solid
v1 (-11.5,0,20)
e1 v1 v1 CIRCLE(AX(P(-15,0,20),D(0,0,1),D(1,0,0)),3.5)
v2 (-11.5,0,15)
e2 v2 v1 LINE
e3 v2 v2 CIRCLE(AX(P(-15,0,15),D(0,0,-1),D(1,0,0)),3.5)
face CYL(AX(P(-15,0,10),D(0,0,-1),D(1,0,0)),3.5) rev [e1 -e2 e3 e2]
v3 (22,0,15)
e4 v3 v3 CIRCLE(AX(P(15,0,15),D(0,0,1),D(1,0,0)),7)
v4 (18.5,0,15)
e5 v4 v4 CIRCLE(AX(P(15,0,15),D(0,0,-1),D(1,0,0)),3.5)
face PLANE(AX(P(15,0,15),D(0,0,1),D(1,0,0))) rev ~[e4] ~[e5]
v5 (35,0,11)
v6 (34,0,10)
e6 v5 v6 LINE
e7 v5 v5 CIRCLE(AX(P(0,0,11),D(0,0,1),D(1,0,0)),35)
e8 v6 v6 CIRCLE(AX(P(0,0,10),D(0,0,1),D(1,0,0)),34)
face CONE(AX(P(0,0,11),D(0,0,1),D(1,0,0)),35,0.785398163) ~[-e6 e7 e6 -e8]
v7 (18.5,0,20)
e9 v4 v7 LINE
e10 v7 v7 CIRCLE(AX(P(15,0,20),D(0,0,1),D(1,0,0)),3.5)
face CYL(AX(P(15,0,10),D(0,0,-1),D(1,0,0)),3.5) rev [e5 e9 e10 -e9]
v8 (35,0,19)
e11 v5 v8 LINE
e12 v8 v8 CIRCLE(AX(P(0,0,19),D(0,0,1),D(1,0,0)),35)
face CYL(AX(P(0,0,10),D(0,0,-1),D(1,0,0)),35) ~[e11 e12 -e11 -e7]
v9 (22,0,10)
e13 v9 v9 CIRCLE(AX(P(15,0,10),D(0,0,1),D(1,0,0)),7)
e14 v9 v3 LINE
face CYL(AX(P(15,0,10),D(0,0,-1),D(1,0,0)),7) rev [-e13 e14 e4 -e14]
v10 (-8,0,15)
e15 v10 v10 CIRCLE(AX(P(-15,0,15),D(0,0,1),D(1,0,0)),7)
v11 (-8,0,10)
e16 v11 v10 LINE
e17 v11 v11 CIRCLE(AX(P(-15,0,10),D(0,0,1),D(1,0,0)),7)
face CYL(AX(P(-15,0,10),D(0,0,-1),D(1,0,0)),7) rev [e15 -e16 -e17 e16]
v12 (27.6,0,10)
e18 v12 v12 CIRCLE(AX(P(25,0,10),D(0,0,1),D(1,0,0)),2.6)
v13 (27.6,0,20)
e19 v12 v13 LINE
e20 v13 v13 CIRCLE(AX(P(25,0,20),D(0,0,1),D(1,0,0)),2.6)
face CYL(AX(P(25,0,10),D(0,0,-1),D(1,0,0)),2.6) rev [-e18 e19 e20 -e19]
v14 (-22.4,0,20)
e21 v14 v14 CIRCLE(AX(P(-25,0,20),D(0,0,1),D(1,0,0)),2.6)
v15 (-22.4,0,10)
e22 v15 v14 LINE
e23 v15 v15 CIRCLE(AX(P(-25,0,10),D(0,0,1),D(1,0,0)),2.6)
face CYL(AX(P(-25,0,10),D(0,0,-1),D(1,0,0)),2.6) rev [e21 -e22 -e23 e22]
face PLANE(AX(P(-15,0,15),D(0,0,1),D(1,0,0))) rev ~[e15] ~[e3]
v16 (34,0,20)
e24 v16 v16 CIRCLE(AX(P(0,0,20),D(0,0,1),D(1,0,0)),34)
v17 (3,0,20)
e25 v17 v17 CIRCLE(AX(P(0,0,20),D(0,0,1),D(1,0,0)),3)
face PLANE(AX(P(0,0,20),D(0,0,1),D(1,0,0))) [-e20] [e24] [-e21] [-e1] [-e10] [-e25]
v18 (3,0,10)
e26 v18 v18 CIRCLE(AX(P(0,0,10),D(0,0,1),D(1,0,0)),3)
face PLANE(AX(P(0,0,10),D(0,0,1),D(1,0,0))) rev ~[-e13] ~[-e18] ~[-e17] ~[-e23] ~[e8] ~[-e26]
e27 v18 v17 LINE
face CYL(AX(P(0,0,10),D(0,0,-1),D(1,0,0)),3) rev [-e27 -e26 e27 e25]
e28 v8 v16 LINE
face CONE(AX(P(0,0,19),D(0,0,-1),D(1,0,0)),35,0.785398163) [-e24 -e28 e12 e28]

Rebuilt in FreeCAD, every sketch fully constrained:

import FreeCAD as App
import Part
import Sketcher
from FreeCAD import Vector


def edges_at(feature, points):
    """Names of the edges that pass closest to the given points."""
    edges = feature.Shape.Edges
    near = lambda p: min(range(len(edges)), key=lambda i: edges[i].distToShape(Part.Vertex(*p))[0])
    return sorted({f"Edge{near(p) + 1}" for p in points})

doc = App.newDocument("Part")
body = doc.addObject("PartDesign::Body", "Body")

# Sketch on XY plane
sketch1 = body.newObject("Sketcher::SketchObject", "Sketch")
sketch1.AttachmentSupport = (doc.getObject("XY_Plane"), [""])
sketch1.MapMode = "FlatFace"
sketch1.addGeometry(Part.Circle(Vector(15, 0, 0), Vector(0, 0, 1), 3.5), False)
sketch1.addConstraint(Sketcher.Constraint("PointOnObject", 0, 3, -1))
sketch1.addConstraint(Sketcher.Constraint("Diameter", 0, 7.0))
sketch1.addConstraint(Sketcher.Constraint("DistanceX", -1, 1, 0, 3, 15.0))
pad1 = body.newObject("PartDesign::Pad", "Pad")
pad1.Profile = sketch1
pad1.Length = 10
body2 = doc.addObject("PartDesign::Body", "Body001")

# Sketch on XY plane
sketch2 = body2.newObject("Sketcher::SketchObject", "Sketch001")
sketch2.AttachmentSupport = (doc.getObject("XY_Plane001"), [""])
sketch2.MapMode = "FlatFace"
sketch2.addGeometry(Part.Circle(Vector(15, 0, 0), Vector(0, 0, 1), 7), False)
sketch2.addConstraint(Sketcher.Constraint("PointOnObject", 0, 3, -1))
sketch2.addConstraint(Sketcher.Constraint("Diameter", 0, 14.0))
sketch2.addConstraint(Sketcher.Constraint("DistanceX", -1, 1, 0, 3, 15.0))
pad2 = body2.newObject("PartDesign::Pad", "Pad001")
pad2.Profile = sketch2
pad2.Length = 5
body3 = doc.addObject("PartDesign::Body", "Body002")

# Sketch on XY plane
sketch3 = body3.newObject("Sketcher::SketchObject", "Sketch002")
sketch3.AttachmentSupport = (doc.getObject("XY_Plane002"), [""])
sketch3.MapMode = "FlatFace"
sketch3.addGeometry(Part.Circle(Vector(-15, 0, 0), Vector(0, 0, 1), 3.5), False)
sketch3.addConstraint(Sketcher.Constraint("PointOnObject", 0, 3, -1))
sketch3.addConstraint(Sketcher.Constraint("Diameter", 0, 7.0))
sketch3.addConstraint(Sketcher.Constraint("DistanceX", 0, 3, -1, 1, 15.0))
pad3 = body3.newObject("PartDesign::Pad", "Pad002")
pad3.Profile = sketch3
pad3.Length = 10
body4 = doc.addObject("PartDesign::Body", "Body003")

# Sketch on XY plane
sketch4 = body4.newObject("Sketcher::SketchObject", "Sketch003")
sketch4.AttachmentSupport = (doc.getObject("XY_Plane003"), [""])
sketch4.MapMode = "FlatFace"
sketch4.addGeometry(Part.Circle(Vector(-15, 0, 0), Vector(0, 0, 1), 7), False)
sketch4.addConstraint(Sketcher.Constraint("PointOnObject", 0, 3, -1))
sketch4.addConstraint(Sketcher.Constraint("Diameter", 0, 14.0))
sketch4.addConstraint(Sketcher.Constraint("DistanceX", 0, 3, -1, 1, 15.0))
pad4 = body4.newObject("PartDesign::Pad", "Pad003")
pad4.Profile = sketch4
pad4.Length = 5
body5 = doc.addObject("PartDesign::Body", "Body004")

# Sketch on XY plane
sketch5 = body5.newObject("Sketcher::SketchObject", "Sketch004")
sketch5.AttachmentSupport = (doc.getObject("XY_Plane004"), [""])
sketch5.MapMode = "FlatFace"
sketch5.addGeometry(Part.Circle(Vector(-25, 0, 0), Vector(0, 0, 1), 2.6), False)
sketch5.addConstraint(Sketcher.Constraint("PointOnObject", 0, 3, -1))
sketch5.addConstraint(Sketcher.Constraint("Diameter", 0, 5.2))
sketch5.addConstraint(Sketcher.Constraint("DistanceX", 0, 3, -1, 1, 25.0))
pad5 = body5.newObject("PartDesign::Pad", "Pad004")
pad5.Profile = sketch5
pad5.Length = 10
body6 = doc.addObject("PartDesign::Body", "Body005")

# Sketch on XY plane
sketch6 = body6.newObject("Sketcher::SketchObject", "Sketch005")
sketch6.AttachmentSupport = (doc.getObject("XY_Plane005"), [""])
sketch6.MapMode = "FlatFace"
sketch6.addGeometry(Part.Circle(Vector(25, 0, 0), Vector(0, 0, 1), 2.6), False)
sketch6.addConstraint(Sketcher.Constraint("PointOnObject", 0, 3, -1))
sketch6.addConstraint(Sketcher.Constraint("Diameter", 0, 5.2))
sketch6.addConstraint(Sketcher.Constraint("DistanceX", -1, 1, 0, 3, 25.0))
pad6 = body6.newObject("PartDesign::Pad", "Pad005")
pad6.Profile = sketch6
pad6.Length = 10
body7 = doc.addObject("PartDesign::Body", "Body006")
body7.AllowCompound = True

# Sketch on XY plane
sketch7 = body7.newObject("Sketcher::SketchObject", "Sketch006")
sketch7.AttachmentSupport = (doc.getObject("XY_Plane006"), [""])
sketch7.MapMode = "FlatFace"
sketch7.addGeometry(Part.Circle(Vector(0, 0, 0), Vector(0, 0, 1), 3), False)
sketch7.addConstraint(Sketcher.Constraint("Coincident", 0, 3, -1, 1))
sketch7.addConstraint(Sketcher.Constraint("Diameter", 0, 6.0))
pad7 = body7.newObject("PartDesign::Pad", "Pad006")
pad7.Profile = sketch7
pad7.Length = 10
doc.recompute()

boolean = body7.newObject("PartDesign::Boolean", "Boolean")
boolean.Type = "Fuse"
boolean.addObjects([body])
doc.recompute()

boolean2 = body7.newObject("PartDesign::Boolean", "Boolean001")
boolean2.Type = "Fuse"
boolean2.addObjects([body2])
doc.recompute()

boolean3 = body7.newObject("PartDesign::Boolean", "Boolean002")
boolean3.Type = "Fuse"
boolean3.addObjects([body3])
doc.recompute()

boolean4 = body7.newObject("PartDesign::Boolean", "Boolean003")
boolean4.Type = "Fuse"
boolean4.addObjects([body4])
doc.recompute()

boolean5 = body7.newObject("PartDesign::Boolean", "Boolean004")
boolean5.Type = "Fuse"
boolean5.addObjects([body5])
doc.recompute()

boolean6 = body7.newObject("PartDesign::Boolean", "Boolean005")
boolean6.Type = "Fuse"
boolean6.addObjects([body6])
body8 = doc.addObject("PartDesign::Body", "Body007")

# Sketch on XY plane
sketch8 = body8.newObject("Sketcher::SketchObject", "Sketch007")
sketch8.AttachmentSupport = (doc.getObject("XY_Plane007"), [""])
sketch8.MapMode = "FlatFace"
sketch8.addGeometry(Part.Circle(Vector(0, 0, 0), Vector(0, 0, 1), 35), False)
sketch8.addConstraint(Sketcher.Constraint("Coincident", 0, 3, -1, 1))
sketch8.addConstraint(Sketcher.Constraint("Diameter", 0, 70.0))
pad8 = body8.newObject("PartDesign::Pad", "Pad007")
pad8.Profile = sketch8
pad8.Length = 10
doc.recompute()

boolean7 = body8.newObject("PartDesign::Boolean", "Boolean006")
boolean7.Type = "Cut"
boolean7.addObjects([body7])
body9 = doc.addObject("PartDesign::Body", "Body008")
doc.recompute()

body8.Placement = App.Placement(Vector(0, 0, 10), App.Rotation(Vector(0, 0, 1), 0))
boolean8 = body9.newObject("PartDesign::Boolean", "Boolean007")
boolean8.Type = "Fuse"
boolean8.addObjects([body8])
doc.recompute()

chamfer = body9.newObject("PartDesign::Chamfer", "Chamfer")
chamfer.Base = (boolean8, edges_at(boolean8, [(-35, 0, 20), (-35, 0, 10)]))
chamfer.Size = 1

doc.recompute()
